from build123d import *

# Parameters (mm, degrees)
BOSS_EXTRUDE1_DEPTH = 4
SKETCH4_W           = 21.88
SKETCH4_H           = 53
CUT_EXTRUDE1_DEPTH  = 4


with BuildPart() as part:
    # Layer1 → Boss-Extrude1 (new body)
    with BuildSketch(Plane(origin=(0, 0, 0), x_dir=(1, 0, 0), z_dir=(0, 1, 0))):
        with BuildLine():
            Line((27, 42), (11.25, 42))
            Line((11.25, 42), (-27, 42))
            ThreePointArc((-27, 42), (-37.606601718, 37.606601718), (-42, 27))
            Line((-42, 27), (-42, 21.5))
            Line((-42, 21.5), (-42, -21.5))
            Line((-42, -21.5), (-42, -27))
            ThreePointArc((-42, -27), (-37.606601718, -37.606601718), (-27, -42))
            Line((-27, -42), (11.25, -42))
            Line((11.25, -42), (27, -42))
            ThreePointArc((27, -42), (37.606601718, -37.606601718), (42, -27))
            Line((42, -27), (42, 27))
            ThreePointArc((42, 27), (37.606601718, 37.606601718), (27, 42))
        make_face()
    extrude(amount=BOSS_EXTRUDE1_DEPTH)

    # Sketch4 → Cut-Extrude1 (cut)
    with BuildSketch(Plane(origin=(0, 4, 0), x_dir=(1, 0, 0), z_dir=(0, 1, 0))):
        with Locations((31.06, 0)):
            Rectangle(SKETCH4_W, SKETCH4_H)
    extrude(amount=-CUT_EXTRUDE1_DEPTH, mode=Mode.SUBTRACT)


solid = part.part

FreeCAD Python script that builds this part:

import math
import FreeCAD as App
import Part
import Sketcher

V = App.Vector
Q = App.Units.Quantity

doc = App.newDocument("Part")
body = doc.addObject("PartDesign::Body", "Body")

sketch1 = doc.addObject("Sketcher::SketchObject", "Sketch")
body.addObject(sketch1)
sketch1.AttachmentSupport = (doc.XZ_Plane, [""])
sketch1.MapMode = "FlatFace"
sketch1.addGeometry(Part.LineSegment(V(27, -42, 0), V(-27, -42, 0)), False)
sketch1.addGeometry(Part.ArcOfCircle(Part.Circle(V(-27, -27, 0), V(0, 0, 1), 15), math.radians(180), math.radians(270)), False)
sketch1.addGeometry(Part.LineSegment(V(-42, -27, 0), V(-42, 27, 0)), False)
sketch1.addGeometry(Part.ArcOfCircle(Part.Circle(V(-27, 27, 0), V(0, 0, 1), 15), math.radians(90), math.radians(180)), False)
sketch1.addGeometry(Part.LineSegment(V(-27, 42, 0), V(27, 42, 0)), False)
sketch1.addGeometry(Part.ArcOfCircle(Part.Circle(V(27, 27, 0), V(0, 0, 1), 15), math.radians(0), math.radians(90)), False)
sketch1.addGeometry(Part.LineSegment(V(42, 27, 0), V(42, -27, 0)), False)
sketch1.addGeometry(Part.ArcOfCircle(Part.Circle(V(27, -27, 0), V(0, 0, 1), 15), math.radians(-90), math.radians(0)), False)
sketch1.addConstraint(Sketcher.Constraint("Tangent", 0, 2, 1, 2))
sketch1.addConstraint(Sketcher.Constraint("Tangent", 1, 1, 2, 1))
sketch1.addConstraint(Sketcher.Constraint("Tangent", 2, 2, 3, 2))
sketch1.addConstraint(Sketcher.Constraint("Tangent", 3, 1, 4, 1))
sketch1.addConstraint(Sketcher.Constraint("Tangent", 4, 2, 5, 2))
sketch1.addConstraint(Sketcher.Constraint("Tangent", 5, 1, 6, 1))
sketch1.addConstraint(Sketcher.Constraint("Tangent", 6, 2, 7, 2))
sketch1.addConstraint(Sketcher.Constraint("Tangent", 7, 1, 0, 1))
sketch1.addConstraint(Sketcher.Constraint("Horizontal", 0))
sketch1.addConstraint(Sketcher.Constraint("Vertical", 2))
sketch1.addConstraint(Sketcher.Constraint("Horizontal", 4))
sketch1.addConstraint(Sketcher.Constraint("Vertical", 6))
sketch1.addConstraint(Sketcher.Constraint("Equal", 1, 3))
sketch1.addConstraint(Sketcher.Constraint("Equal", 3, 5))
sketch1.addConstraint(Sketcher.Constraint("Equal", 5, 7))
sketch1.addConstraint(Sketcher.Constraint("Symmetric", 1, 3, 5, 3, -1, 1))
sketch1.addConstraint(Sketcher.Constraint("Equal", 4, 2))
sketch1.addConstraint(Sketcher.Constraint("Radius", 1, Q("15 mm")))
sketch1.addConstraint(Sketcher.Constraint("DistanceX", 0, 2, 0, 1, Q("54 mm")))
pad1 = doc.addObject("PartDesign::Pad", "Pad")
body.addObject(pad1)
pad1.Profile = sketch1
pad1.Length = 4
pad1.Reversed = True

sketch2 = doc.addObject("Sketcher::SketchObject", "Sketch001")
body.addObject(sketch2)
sketch2.AttachmentSupport = (doc.XZ_Plane, [""])
sketch2.MapMode = "FlatFace"
sketch2.AttachmentOffset = App.Placement(V(0, 0, -4), App.Rotation())
sketch2.addGeometry(Part.LineSegment(V(20.12, -26.5, 0), V(20.12, 26.5, 0)), False)
sketch2.addGeometry(Part.LineSegment(V(20.12, 26.5, 0), V(42, 26.5, 0)), False)
sketch2.addGeometry(Part.LineSegment(V(42, 26.5, 0), V(42, -26.5, 0)), False)
sketch2.addGeometry(Part.LineSegment(V(42, -26.5, 0), V(20.12, -26.5, 0)), False)
sketch2.addConstraint(Sketcher.Constraint("Coincident", 0, 2, 1, 1))
sketch2.addConstraint(Sketcher.Constraint("Coincident", 1, 2, 2, 1))
sketch2.addConstraint(Sketcher.Constraint("Coincident", 2, 2, 3, 1))
sketch2.addConstraint(Sketcher.Constraint("Coincident", 3, 2, 0, 1))
sketch2.addConstraint(Sketcher.Constraint("Vertical", 0))
sketch2.addConstraint(Sketcher.Constraint("Horizontal", 1))
sketch2.addConstraint(Sketcher.Constraint("Vertical", 2))
sketch2.addConstraint(Sketcher.Constraint("Horizontal", 3))
sketch2.addConstraint(Sketcher.Constraint("DistanceY", 0, 1, 0, 2, Q("53 mm")))
sketch2.addConstraint(Sketcher.Constraint("DistanceX", -1, 1, 1, 2, Q("42 mm")))
sketch2.addConstraint(Sketcher.Constraint("DistanceX", 1, 1, 1, 2, Q("21.88 mm")))
sketch2.addConstraint(Sketcher.Constraint("DistanceY", -1, 1, 0, 2, Q("26.5 mm")))
pocket1 = doc.addObject("PartDesign::Pocket", "Pocket")
body.addObject(pocket1)
pocket1.Profile = sketch2
pocket1.Length = 4
pocket1.Reversed = True

doc.recompute()
